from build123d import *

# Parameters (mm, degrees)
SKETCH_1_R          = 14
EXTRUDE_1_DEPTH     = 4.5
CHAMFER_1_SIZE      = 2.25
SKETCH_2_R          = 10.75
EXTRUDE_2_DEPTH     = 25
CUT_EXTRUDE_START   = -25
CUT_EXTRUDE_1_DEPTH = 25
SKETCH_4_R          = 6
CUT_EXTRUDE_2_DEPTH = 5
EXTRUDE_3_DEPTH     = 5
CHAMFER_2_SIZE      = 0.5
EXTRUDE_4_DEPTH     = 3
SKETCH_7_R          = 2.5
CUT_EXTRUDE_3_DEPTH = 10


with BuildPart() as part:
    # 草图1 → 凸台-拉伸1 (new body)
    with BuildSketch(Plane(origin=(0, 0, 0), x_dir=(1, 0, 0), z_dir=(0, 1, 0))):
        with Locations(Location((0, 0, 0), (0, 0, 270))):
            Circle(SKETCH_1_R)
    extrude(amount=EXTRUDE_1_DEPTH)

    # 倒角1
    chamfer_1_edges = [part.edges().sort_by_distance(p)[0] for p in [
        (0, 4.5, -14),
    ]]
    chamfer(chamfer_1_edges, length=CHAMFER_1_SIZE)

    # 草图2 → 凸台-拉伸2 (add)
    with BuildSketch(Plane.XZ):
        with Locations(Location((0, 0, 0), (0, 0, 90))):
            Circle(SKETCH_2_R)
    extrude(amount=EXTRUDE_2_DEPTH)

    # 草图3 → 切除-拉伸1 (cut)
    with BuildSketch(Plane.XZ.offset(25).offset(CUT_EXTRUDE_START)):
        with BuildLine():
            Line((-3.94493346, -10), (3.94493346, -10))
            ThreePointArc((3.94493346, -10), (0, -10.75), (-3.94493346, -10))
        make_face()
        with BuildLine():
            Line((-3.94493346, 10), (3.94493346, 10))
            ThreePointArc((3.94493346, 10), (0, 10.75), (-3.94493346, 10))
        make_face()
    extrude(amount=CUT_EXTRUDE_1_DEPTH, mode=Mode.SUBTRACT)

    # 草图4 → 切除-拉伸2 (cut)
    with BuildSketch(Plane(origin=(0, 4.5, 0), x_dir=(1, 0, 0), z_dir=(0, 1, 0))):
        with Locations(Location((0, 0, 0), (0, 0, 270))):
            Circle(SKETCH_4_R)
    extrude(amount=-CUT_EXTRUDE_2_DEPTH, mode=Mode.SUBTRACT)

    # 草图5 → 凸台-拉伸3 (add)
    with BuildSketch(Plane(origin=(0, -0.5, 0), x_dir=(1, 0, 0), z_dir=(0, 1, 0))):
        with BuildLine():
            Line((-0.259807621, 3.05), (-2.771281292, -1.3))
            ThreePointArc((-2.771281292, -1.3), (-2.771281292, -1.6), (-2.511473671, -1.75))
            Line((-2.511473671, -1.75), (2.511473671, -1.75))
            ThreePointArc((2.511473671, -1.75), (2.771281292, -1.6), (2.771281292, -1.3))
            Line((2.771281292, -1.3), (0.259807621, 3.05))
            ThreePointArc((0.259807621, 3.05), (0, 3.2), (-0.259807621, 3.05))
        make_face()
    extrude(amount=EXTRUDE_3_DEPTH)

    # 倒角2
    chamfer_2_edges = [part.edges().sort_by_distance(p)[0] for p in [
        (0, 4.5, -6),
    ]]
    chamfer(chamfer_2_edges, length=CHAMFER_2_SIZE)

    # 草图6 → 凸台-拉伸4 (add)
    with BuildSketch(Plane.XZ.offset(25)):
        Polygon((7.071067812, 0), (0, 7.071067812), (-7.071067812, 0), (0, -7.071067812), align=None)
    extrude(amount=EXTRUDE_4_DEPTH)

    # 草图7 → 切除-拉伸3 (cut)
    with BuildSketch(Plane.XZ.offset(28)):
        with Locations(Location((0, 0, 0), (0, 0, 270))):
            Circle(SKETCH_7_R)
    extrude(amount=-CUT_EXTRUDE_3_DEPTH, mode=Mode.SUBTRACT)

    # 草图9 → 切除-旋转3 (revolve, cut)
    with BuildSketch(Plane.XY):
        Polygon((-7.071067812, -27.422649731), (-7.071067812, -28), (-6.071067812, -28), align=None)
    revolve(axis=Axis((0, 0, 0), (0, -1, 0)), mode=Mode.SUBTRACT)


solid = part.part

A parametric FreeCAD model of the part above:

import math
import FreeCAD as App
import Part
import Sketcher

V = App.Vector
Q = App.Units.Quantity


def edges_at(feature, points):
    """Names of the edges that pass closest to the given points."""
    edges = feature.Shape.Edges
    near = lambda p: min(range(len(edges)), key=lambda i: edges[i].distToShape(Part.Vertex(*p))[0])
    return sorted({f"Edge{near(p) + 1}" for p in points})

doc = App.newDocument("Part")
params = doc.addObject("Spreadsheet::Sheet", "Params")
for row, (alias, value) in enumerate([
    ("sketch1_diameter", "28 mm"),
    ("pad1_length", "4.5 mm"),
    ("chamfer_size", "2.25 mm"),
    ("sketch2_diameter", "21.5 mm"),
    ("pad2_length", "25 mm"),
    ("sketch3_radius", "10.75 mm"),
    ("pocket1_length", "25 mm"),
    ("sketch4_diameter", "12 mm"),
    ("pocket2_length", "5 mm"),
    ("sketch5_radius", "0.3 mm"),
    ("pad3_length", "5 mm"),
    ("chamfer2_size", "0.5 mm"),
    ("sketch6_length", "10 mm"),
    ("pad4_length", "3 mm"),
    ("sketch7_diameter", "5 mm"),
    ("pocket3_length", "10 mm"),
    ("sketch8_width", "1 mm"),
    ("groove_angle", "360 deg"),
], start=1):
    params.set(f"A{row}", alias)
    params.set(f"B{row}", "=" + value)
    params.setAlias(f"B{row}", alias)

body = doc.addObject("PartDesign::Body", "Body")

sketch1 = body.newObject("Sketcher::SketchObject", "Sketch")
sketch1.AttachmentSupport = (doc.getObject("XZ_Plane"), [""])
sketch1.MapMode = "FlatFace"
sketch1.addGeometry(Part.Circle(V(0, 0, 0), V(0, 0, 1), 14), False)
sketch1.addConstraint(Sketcher.Constraint("Coincident", 0, 3, -1, 1))
sketch1.addConstraint(Sketcher.Constraint("Diameter", 0, 28.0))
sketch1.setExpression("Constraints[1]", "Params.sketch1_diameter")
pad1 = body.newObject("PartDesign::Pad", "Pad")
pad1.Profile = sketch1
pad1.setExpression("Length", "Params.pad1_length")
pad1.Reversed = True
doc.recompute()

chamfer = body.newObject("PartDesign::Chamfer", "Chamfer")
chamfer.Base = (pad1, edges_at(pad1, [(0, 4.5, -14)]))
chamfer.setExpression("Size", "Params.chamfer_size")

sketch2 = body.newObject("Sketcher::SketchObject", "Sketch001")
sketch2.AttachmentSupport = (doc.getObject("XZ_Plane"), [""])
sketch2.MapMode = "FlatFace"
sketch2.addGeometry(Part.Circle(V(0, 0, 0), V(0, 0, 1), 11), False)
sketch2.addConstraint(Sketcher.Constraint("Coincident", 0, 3, -1, 1))
sketch2.addConstraint(Sketcher.Constraint("Diameter", 0, 21.5))
sketch2.setExpression("Constraints[1]", "Params.sketch2_diameter")
pad2 = body.newObject("PartDesign::Pad", "Pad001")
pad2.Profile = sketch2
pad2.setExpression("Length", "Params.pad2_length")

sketch3 = body.newObject("Sketcher::SketchObject", "Sketch002")
sketch3.AttachmentSupport = (doc.getObject("XZ_Plane"), [""])
sketch3.MapMode = "FlatFace"
sketch3.addGeometry(Part.LineSegment(V(4, -10, 0), V(-4, -10, 0)), False)
sketch3.addGeometry(Part.ArcOfCircle(Part.Circle(V(0, 0, 0), V(0, 0, 1), 11), math.radians(-112), math.radians(-68)), False)
sketch3.addGeometry(Part.LineSegment(V(-4, 10, 0), V(4, 10, 0)), False)
sketch3.addGeometry(Part.ArcOfCircle(Part.Circle(V(0, 0, 0), V(0, 0, 1), 11), math.radians(68), math.radians(112)), False)
sketch3.addConstraint(Sketcher.Constraint("Coincident", 0, 1, 1, 2))
sketch3.addConstraint(Sketcher.Constraint("Coincident", 1, 1, 0, 2))
sketch3.addConstraint(Sketcher.Constraint("Coincident", 2, 1, 3, 2))
sketch3.addConstraint(Sketcher.Constraint("Coincident", 3, 1, 2, 2))
sketch3.addConstraint(Sketcher.Constraint("Horizontal", 0))
sketch3.addConstraint(Sketcher.Constraint("Horizontal", 2))
sketch3.addConstraint(Sketcher.Constraint("Coincident", 1, 3, -1, 1))
sketch3.addConstraint(Sketcher.Constraint("Coincident", 3, 3, -1, 1))
sketch3.addConstraint(Sketcher.Constraint("Equal", 1, 3))
sketch3.addConstraint(Sketcher.Constraint("Vertical", 1, 1, 2, 1))
sketch3.addConstraint(Sketcher.Constraint("Radius", 1, 10.75))
sketch3.addConstraint(Sketcher.Constraint("DistanceY", 0, 1, -1, 1, 10.0))
sketch3.setExpression("Constraints[10]", "Params.sketch3_radius")
pocket1 = body.newObject("PartDesign::Pocket", "Pocket")
pocket1.Profile = sketch3
pocket1.setExpression("Length", "Params.pocket1_length")
pocket1.Reversed = True

sketch4 = body.newObject("Sketcher::SketchObject", "Sketch003")
sketch4.AttachmentSupport = (doc.getObject("XZ_Plane"), [""])
sketch4.MapMode = "FlatFace"
sketch4.AttachmentOffset = App.Placement(V(0, 0, -4.5), App.Rotation())
sketch4.addGeometry(Part.Circle(V(0, 0, 0), V(0, 0, 1), 6), False)
sketch4.addConstraint(Sketcher.Constraint("Coincident", 0, 3, -1, 1))
sketch4.addConstraint(Sketcher.Constraint("Diameter", 0, 12.0))
sketch4.setExpression("Constraints[1]", "Params.sketch4_diameter")
pocket2 = body.newObject("PartDesign::Pocket", "Pocket001")
pocket2.Profile = sketch4
pocket2.setExpression("Length", "Params.pocket2_length")
pocket2.Reversed = True

sketch5 = body.newObject("Sketcher::SketchObject", "Sketch004")
sketch5.AttachmentSupport = (doc.getObject("XZ_Plane"), [""])
sketch5.MapMode = "FlatFace"
sketch5.AttachmentOffset = App.Placement(V(0, 0, 0.5), App.Rotation())
sketch5.addGeometry(Part.LineSegment(V(-0.26, -3.05, 0), V(-2.77, 1.3, 0)), False)
sketch5.addGeometry(Part.ArcOfCircle(Part.Circle(V(-2.51, 1.45, 0), V(0, 0, 1), 0.3), math.radians(90), math.radians(210)), False)
sketch5.addGeometry(Part.LineSegment(V(-2.51, 1.75, 0), V(2.51, 1.75, 0)), False)
sketch5.addGeometry(Part.ArcOfCircle(Part.Circle(V(2.51, 1.45, 0), V(0, 0, 1), 0.3), math.radians(-30), math.radians(90)), False)
sketch5.addGeometry(Part.LineSegment(V(2.77, 1.3, 0), V(0.26, -3.05, 0)), False)
sketch5.addGeometry(Part.ArcOfCircle(Part.Circle(V(0, -2.9, 0), V(0, 0, 1), 0.3), math.radians(-150), math.radians(-30)), False)
sketch5.addConstraint(Sketcher.Constraint("Tangent", 0, 2, 1, 2))
sketch5.addConstraint(Sketcher.Constraint("Tangent", 1, 1, 2, 1))
sketch5.addConstraint(Sketcher.Constraint("Tangent", 2, 2, 3, 2))
sketch5.addConstraint(Sketcher.Constraint("Tangent", 3, 1, 4, 1))
sketch5.addConstraint(Sketcher.Constraint("Tangent", 4, 2, 5, 2))
sketch5.addConstraint(Sketcher.Constraint("Tangent", 5, 1, 0, 1))
sketch5.addConstraint(Sketcher.Constraint("Horizontal", 2))
sketch5.addConstraint(Sketcher.Constraint("Equal", 1, 3))
sketch5.addConstraint(Sketcher.Constraint("Equal", 3, 5))
sketch5.addConstraint(Sketcher.Constraint("Symmetric", 0, 2, 3, 1, -2))
sketch5.addConstraint(Sketcher.Constraint("Radius", 1, 0.3))
sketch5.addConstraint(Sketcher.Constraint("Angle", 0, Q("120 deg")))
sketch5.addConstraint(Sketcher.Constraint("DistanceY", 5, 3, -1, 1, 2.9))
sketch5.addConstraint(Sketcher.Constraint("DistanceY", -1, 1, 0, 2, 1.3))
sketch5.setExpression("Constraints[10]", "Params.sketch5_radius")
pad3 = body.newObject("PartDesign::Pad", "Pad002")
pad3.Profile = sketch5
pad3.setExpression("Length", "Params.pad3_length")
pad3.Reversed = True
doc.recompute()

chamfer2 = body.newObject("PartDesign::Chamfer", "Chamfer001")
chamfer2.Base = (pad3, edges_at(pad3, [(0, 4.5, -6)]))
chamfer2.setExpression("Size", "Params.chamfer2_size")

sketch6 = body.newObject("Sketcher::SketchObject", "Sketch005")
sketch6.AttachmentSupport = (doc.getObject("XZ_Plane"), [""])
sketch6.MapMode = "FlatFace"
sketch6.AttachmentOffset = App.Placement(V(0, 0, 25), App.Rotation())
sketch6.addGeometry(Part.LineSegment(V(7, 0, 0), V(0, 7, 0)), False)
sketch6.addGeometry(Part.LineSegment(V(0, 7, 0), V(-7, 0, 0)), False)
sketch6.addGeometry(Part.LineSegment(V(-7, 0, 0), V(0, -7, 0)), False)
sketch6.addGeometry(Part.LineSegment(V(0, -7, 0), V(7, 0, 0)), False)
sketch6.addConstraint(Sketcher.Constraint("Coincident", 0, 2, 1, 1))
sketch6.addConstraint(Sketcher.Constraint("Coincident", 1, 2, 2, 1))
sketch6.addConstraint(Sketcher.Constraint("Coincident", 2, 2, 3, 1))
sketch6.addConstraint(Sketcher.Constraint("Coincident", 3, 2, 0, 1))
sketch6.addConstraint(Sketcher.Constraint("Symmetric", 0, 2, 2, 2, -1, 1))
sketch6.addConstraint(Sketcher.Constraint("Symmetric", 1, 2, 3, 2, -1, 1))
sketch6.addConstraint(Sketcher.Constraint("PointOnObject", 0, 2, -2))
sketch6.addConstraint(Sketcher.Constraint("PointOnObject", 1, 2, -1))
sketch6.addConstraint(Sketcher.Constraint("Perpendicular", 0, 1))
sketch6.addConstraint(Sketcher.Constraint("Distance", 0, 10.0))
sketch6.setExpression("Constraints[9]", "Params.sketch6_length")
pad4 = body.newObject("PartDesign::Pad", "Pad003")
pad4.Profile = sketch6
pad4.setExpression("Length", "Params.pad4_length")

sketch7 = body.newObject("Sketcher::SketchObject", "Sketch006")
sketch7.AttachmentSupport = (doc.getObject("XZ_Plane"), [""])
sketch7.MapMode = "FlatFace"
sketch7.AttachmentOffset = App.Placement(V(0, 0, 28), App.Rotation())
sketch7.addGeometry(Part.Circle(V(0, 0, 0), V(0, 0, 1), 2.5), False)
sketch7.addConstraint(Sketcher.Constraint("Coincident", 0, 3, -1, 1))
sketch7.addConstraint(Sketcher.Constraint("Diameter", 0, 5.0))
sketch7.setExpression("Constraints[1]", "Params.sketch7_diameter")
pocket3 = body.newObject("PartDesign::Pocket", "Pocket002")
pocket3.Profile = sketch7
pocket3.setExpression("Length", "Params.pocket3_length")

sketch8 = body.newObject("Sketcher::SketchObject", "Sketch007")
sketch8.AttachmentSupport = (doc.getObject("XY_Plane"), [""])
sketch8.MapMode = "FlatFace"
sketch8.addGeometry(Part.LineSegment(V(-7.1, -27.4, 0), V(-7.1, -28, 0)), False)
sketch8.addGeometry(Part.LineSegment(V(-7.1, -28, 0), V(-6.1, -28, 0)), False)
sketch8.addGeometry(Part.LineSegment(V(-6.1, -28, 0), V(-7.1, -27.4, 0)), False)
sketch8.addConstraint(Sketcher.Constraint("Coincident", 0, 2, 1, 1))
sketch8.addConstraint(Sketcher.Constraint("Coincident", 1, 2, 2, 1))
sketch8.addConstraint(Sketcher.Constraint("Coincident", 2, 2, 0, 1))
sketch8.addConstraint(Sketcher.Constraint("Vertical", 0))
sketch8.addConstraint(Sketcher.Constraint("Horizontal", 1))
sketch8.addConstraint(Sketcher.Constraint("DistanceX", 1, 1, 1, 2, 1.0))
sketch8.addConstraint(Sketcher.Constraint("Angle", 2, Q("150 deg")))
sketch8.addConstraint(Sketcher.Constraint("DistanceY", 0, 2, -1, 1, 28.0))
sketch8.addConstraint(Sketcher.Constraint("DistanceX", 0, 2, -1, 1, 7.071068))
sketch8.setExpression("Constraints[5]", "Params.sketch8_width")
groove = body.newObject("PartDesign::Groove", "Groove")
groove.Profile = sketch8
groove.ReferenceAxis = (sketch8, ["V_Axis"])
groove.setExpression("Angle", "Params.groove_angle")

doc.recompute()
